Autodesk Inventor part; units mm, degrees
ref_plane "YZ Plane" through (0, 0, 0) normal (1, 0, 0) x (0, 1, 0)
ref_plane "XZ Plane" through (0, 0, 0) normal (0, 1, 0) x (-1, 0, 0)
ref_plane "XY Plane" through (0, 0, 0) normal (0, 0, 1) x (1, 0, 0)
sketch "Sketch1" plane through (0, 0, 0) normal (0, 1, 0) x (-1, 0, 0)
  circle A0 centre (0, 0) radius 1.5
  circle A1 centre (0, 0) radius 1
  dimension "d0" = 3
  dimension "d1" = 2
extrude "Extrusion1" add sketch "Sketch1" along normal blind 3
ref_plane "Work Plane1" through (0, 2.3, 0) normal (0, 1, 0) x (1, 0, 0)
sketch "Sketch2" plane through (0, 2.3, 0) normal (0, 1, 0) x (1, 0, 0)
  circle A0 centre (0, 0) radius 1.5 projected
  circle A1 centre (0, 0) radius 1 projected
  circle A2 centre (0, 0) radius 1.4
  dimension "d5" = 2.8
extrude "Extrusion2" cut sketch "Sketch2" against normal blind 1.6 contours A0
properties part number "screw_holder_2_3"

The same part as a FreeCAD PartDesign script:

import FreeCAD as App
import Part
import Sketcher

V = App.Vector

doc = App.newDocument("Part")
body = doc.addObject("PartDesign::Body", "Body")

# Sketch on XZ plane
sketch1 = doc.addObject("Sketcher::SketchObject", "Sketch")
body.addObject(sketch1)
sketch1.AttachmentSupport = (doc.XZ_Plane, [""])
sketch1.MapMode = "FlatFace"
sketch1.addGeometry([
    Part.Circle(V(0, 0, 0), V(0, 0, 1), 1.5),
    Part.Circle(V(0, 0, 0), V(0, 0, 1), 1),
], False)
sketch1.addConstraint([
    Sketcher.Constraint("Coincident", 0, 3, -1, 1),
    Sketcher.Constraint("Coincident", 1, 3, -1, 1),
    Sketcher.Constraint("Diameter", 0, 3.0),
    Sketcher.Constraint("Diameter", 1, 2.0),
])
pad1 = doc.addObject("PartDesign::Pad", "Pad")
body.addObject(pad1)
pad1.Profile = sketch1
pad1.Length = 3
pad1.Reversed = True

# Sketch on XZ plane
sketch2 = doc.addObject("Sketcher::SketchObject", "Sketch001")
body.addObject(sketch2)
sketch2.AttachmentSupport = (doc.XZ_Plane, [""])
sketch2.MapMode = "FlatFace"
sketch2.AttachmentOffset = App.Placement(V(0, 0, -2.3), App.Rotation())
sketch2.addGeometry([
    Part.Circle(V(0, 0, 0), V(0, 0, 1), 1.5),
    Part.Circle(V(0, 0, 0), V(0, 0, 1), 1.4),
], False)
sketch2.addConstraint([
    Sketcher.Constraint("Coincident", 0, 3, -1, 1),
    Sketcher.Constraint("Coincident", 1, 3, -1, 1),
    Sketcher.Constraint("Diameter", 1, 2.8),
    Sketcher.Constraint("Diameter", 0, 3.0),
])
pocket1 = doc.addObject("PartDesign::Pocket", "Pocket")
body.addObject(pocket1)
pocket1.Profile = sketch2
pocket1.Length = 1.6
pocket1.Reversed = True

doc.recompute()
